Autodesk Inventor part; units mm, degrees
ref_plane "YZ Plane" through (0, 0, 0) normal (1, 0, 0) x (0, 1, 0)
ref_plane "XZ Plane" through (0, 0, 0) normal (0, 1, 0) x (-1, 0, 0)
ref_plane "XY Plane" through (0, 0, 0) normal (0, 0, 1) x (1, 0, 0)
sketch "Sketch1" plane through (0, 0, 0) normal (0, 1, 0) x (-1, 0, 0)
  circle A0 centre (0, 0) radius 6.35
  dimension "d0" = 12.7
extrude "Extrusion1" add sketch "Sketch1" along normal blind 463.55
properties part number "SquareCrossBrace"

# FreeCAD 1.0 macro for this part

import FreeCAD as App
import Part
import Sketcher
Q = App.Units.Quantity

doc = App.newDocument("Part")
body = doc.addObject("PartDesign::Body", "Body")

sketch1 = body.newObject("Sketcher::SketchObject", "Sketch")
sketch1.AttachmentSupport = (doc.getObject("XZ_Plane"), [""])
sketch1.MapMode = "FlatFace"
sketch1.addGeometry(Part.Circle(App.Vector(0, 0, 0), App.Vector(0, 0, 1), 6), False)
sketch1.addConstraint(Sketcher.Constraint("Coincident", 0, 3, -1, 1))
sketch1.addConstraint(Sketcher.Constraint("Diameter", 0, Q("0.5 in")))
pad1 = body.newObject("PartDesign::Pad", "Pad")
pad1.Profile = sketch1
pad1.Length = Q("18.25 in")
pad1.Reversed = True

doc.recompute()
